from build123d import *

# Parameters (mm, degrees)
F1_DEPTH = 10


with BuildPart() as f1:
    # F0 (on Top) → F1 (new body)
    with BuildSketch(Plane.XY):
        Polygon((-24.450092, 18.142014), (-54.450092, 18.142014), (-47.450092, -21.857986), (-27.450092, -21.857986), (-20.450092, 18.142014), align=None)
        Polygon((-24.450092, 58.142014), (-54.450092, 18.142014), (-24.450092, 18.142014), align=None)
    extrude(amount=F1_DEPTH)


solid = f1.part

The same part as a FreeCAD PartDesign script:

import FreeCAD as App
import Part
import Sketcher

V = App.Vector
Q = App.Units.Quantity

doc = App.newDocument("Part")
body = doc.addObject("PartDesign::Body", "Body")

sketch1 = doc.addObject("Sketcher::SketchObject", "Sketch")
body.addObject(sketch1)
sketch1.AttachmentSupport = (doc.XY_Plane, [""])
sketch1.MapMode = "FlatFace"
sketch1.addGeometry([
    Part.LineSegment(V(-54.5, 18.1, 0), V(-47.5, -21.9, 0)),
    Part.LineSegment(V(-47.5, -21.9, 0), V(-27.5, -21.9, 0)),
    Part.LineSegment(V(-27.5, -21.9, 0), V(-20.5, 18.1, 0)),
    Part.LineSegment(V(-20.5, 18.1, 0), V(-24.5, 18.1, 0)),
    Part.LineSegment(V(-24.5, 18.1, 0), V(-24.5, 58.1, 0)),
    Part.LineSegment(V(-24.5, 58.1, 0), V(-54.5, 18.1, 0)),
], False)
sketch1.addConstraint([
    Sketcher.Constraint("Coincident", 0, 2, 1, 1),
    Sketcher.Constraint("Coincident", 1, 2, 2, 1),
    Sketcher.Constraint("Coincident", 2, 2, 3, 1),
    Sketcher.Constraint("Coincident", 3, 2, 4, 1),
    Sketcher.Constraint("Coincident", 4, 2, 5, 1),
    Sketcher.Constraint("Coincident", 5, 2, 0, 1),
    Sketcher.Constraint("Horizontal", 1),
    Sketcher.Constraint("Horizontal", 3),
    Sketcher.Constraint("Vertical", 4),
    Sketcher.Constraint("Horizontal", 3, 2, 5, 2),
    Sketcher.Constraint("Equal", 0, 2),
    Sketcher.Constraint("DistanceX", 1, 1, 1, 2, Q("20 mm")),
    Sketcher.Constraint("DistanceX", 3, 2, 3, 1, Q("4 mm")),
    Sketcher.Constraint("DistanceY", 4, 1, 4, 2, Q("40 mm")),
    Sketcher.Constraint("Distance", 5, Q("50 mm")),
    Sketcher.Constraint("DistanceY", 1, 2, 2, 2, Q("40 mm")),
    Sketcher.Constraint("DistanceX", 0, 2, -1, 1, Q("47.450092 mm")),
    Sketcher.Constraint("DistanceY", 0, 2, -1, 1, Q("21.857986 mm")),
])
pad1 = doc.addObject("PartDesign::Pad", "Pad")
body.addObject(pad1)
pad1.Profile = sketch1
pad1.Length = 10

doc.recompute()
